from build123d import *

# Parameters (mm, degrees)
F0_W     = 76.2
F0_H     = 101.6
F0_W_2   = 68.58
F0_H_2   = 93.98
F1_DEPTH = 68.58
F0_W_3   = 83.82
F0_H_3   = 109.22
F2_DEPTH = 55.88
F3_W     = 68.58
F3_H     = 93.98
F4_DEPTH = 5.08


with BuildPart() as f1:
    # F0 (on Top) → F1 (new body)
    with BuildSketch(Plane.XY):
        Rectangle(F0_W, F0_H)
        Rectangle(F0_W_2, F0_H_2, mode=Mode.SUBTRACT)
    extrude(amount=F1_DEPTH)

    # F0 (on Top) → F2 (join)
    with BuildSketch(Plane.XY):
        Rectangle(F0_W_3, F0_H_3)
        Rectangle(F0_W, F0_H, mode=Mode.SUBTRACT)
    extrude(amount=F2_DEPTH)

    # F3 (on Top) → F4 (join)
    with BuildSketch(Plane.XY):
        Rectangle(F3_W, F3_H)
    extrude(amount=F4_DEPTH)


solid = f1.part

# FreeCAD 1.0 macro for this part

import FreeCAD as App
import Part
import Sketcher

V = App.Vector
Q = App.Units.Quantity


def add_polygon(sketch, points):
    """Adds a closed chain of lines whose ends are joined by coincident constraints."""
    first, n = sketch.GeometryCount, len(points)
    for a, b in zip(points, points[1:] + points[:1]):
        sketch.addGeometry(Part.LineSegment(App.Vector(*a, 0), App.Vector(*b, 0)), False)
    for i in range(n):
        sketch.addConstraint(Sketcher.Constraint("Coincident", first + i, 2, first + (i + 1) % n, 1))

doc = App.newDocument("Part")
body = doc.addObject("PartDesign::Body", "Body")

# Sketch on XY plane
sketch1 = doc.addObject("Sketcher::SketchObject", "Sketch")
body.addObject(sketch1)
sketch1.AttachmentSupport = (doc.XY_Plane, [""])
sketch1.MapMode = "FlatFace"
add_polygon(sketch1, [(-38.1, 50.8), (-38.1, -50.8), (38.1, -50.8), (38.1, 50.8)])  # lines 0-3
add_polygon(sketch1, [(34.29, -46.99), (-34.29, -46.99), (-34.29, 46.99), (34.29, 46.99)])  # lines 4-7
sketch1.addConstraint([
    Sketcher.Constraint("Vertical", 0),
    Sketcher.Constraint("Horizontal", 1),
    Sketcher.Constraint("Vertical", 2),
    Sketcher.Constraint("Horizontal", 3),
    Sketcher.Constraint("Horizontal", 4),
    Sketcher.Constraint("Vertical", 5),
    Sketcher.Constraint("Horizontal", 6),
    Sketcher.Constraint("Vertical", 7),
    Sketcher.Constraint("Symmetric", 0, 2, 2, 2, -1, 1),
    Sketcher.Constraint("Symmetric", 4, 2, 6, 2, -1, 1),
    Sketcher.Constraint("DistanceX", 1, 1, 1, 2, Q("3 in")),
    Sketcher.Constraint("DistanceY", 0, 2, 0, 1, Q("4 in")),
    Sketcher.Constraint("DistanceX", 4, 2, 4, 1, Q("2.7 in")),
    Sketcher.Constraint("DistanceY", 5, 1, 5, 2, Q("3.7 in")),
])
pad1 = doc.addObject("PartDesign::Pad", "Pad")
body.addObject(pad1)
pad1.Profile = sketch1
pad1.Length = Q("2.7 in")

# Sketch on XY plane
sketch2 = doc.addObject("Sketcher::SketchObject", "Sketch001")
body.addObject(sketch2)
sketch2.AttachmentSupport = (doc.XY_Plane, [""])
sketch2.MapMode = "FlatFace"
add_polygon(sketch2, [(-41.91, 54.61), (-41.91, -54.61), (41.91, -54.61), (41.91, 54.61)])  # lines 0-3
add_polygon(sketch2, [(38.1, -50.8), (-38.1, -50.8), (-38.1, 50.8), (38.1, 50.8)])  # lines 4-7
sketch2.addConstraint([
    Sketcher.Constraint("Vertical", 0),
    Sketcher.Constraint("Horizontal", 1),
    Sketcher.Constraint("Vertical", 2),
    Sketcher.Constraint("Horizontal", 3),
    Sketcher.Constraint("Horizontal", 4),
    Sketcher.Constraint("Vertical", 5),
    Sketcher.Constraint("Horizontal", 6),
    Sketcher.Constraint("Vertical", 7),
    Sketcher.Constraint("Symmetric", 0, 2, 2, 2, -1, 1),
    Sketcher.Constraint("Symmetric", 4, 2, 6, 2, -1, 1),
    Sketcher.Constraint("DistanceX", 4, 2, 4, 1, Q("3 in")),
    Sketcher.Constraint("DistanceY", 5, 1, 5, 2, Q("4 in")),
    Sketcher.Constraint("DistanceX", 1, 1, 1, 2, Q("3.3 in")),
    Sketcher.Constraint("DistanceY", 0, 2, 0, 1, Q("4.3 in")),
])
pad2 = doc.addObject("PartDesign::Pad", "Pad001")
body.addObject(pad2)
pad2.Profile = sketch2
pad2.Length = Q("2.2 in")

# Sketch on XY plane
sketch3 = doc.addObject("Sketcher::SketchObject", "Sketch002")
body.addObject(sketch3)
sketch3.AttachmentSupport = (doc.XY_Plane, [""])
sketch3.MapMode = "FlatFace"
add_polygon(sketch3, [(-34.29, 46.99), (-34.29, -46.99), (34.29, -46.99), (34.29, 46.99)])  # lines 0-3
sketch3.addConstraint([
    Sketcher.Constraint("Vertical", 0),
    Sketcher.Constraint("Horizontal", 1),
    Sketcher.Constraint("Vertical", 2),
    Sketcher.Constraint("Horizontal", 3),
    Sketcher.Constraint("Symmetric", 0, 2, 2, 2, -1, 1),
    Sketcher.Constraint("DistanceX", 1, 1, 1, 2, Q("2.7 in")),
    Sketcher.Constraint("DistanceY", 0, 2, 0, 1, Q("3.7 in")),
])
pad3 = doc.addObject("PartDesign::Pad", "Pad002")
body.addObject(pad3)
pad3.Profile = sketch3
pad3.Length = Q("0.2 in")

doc.recompute()
